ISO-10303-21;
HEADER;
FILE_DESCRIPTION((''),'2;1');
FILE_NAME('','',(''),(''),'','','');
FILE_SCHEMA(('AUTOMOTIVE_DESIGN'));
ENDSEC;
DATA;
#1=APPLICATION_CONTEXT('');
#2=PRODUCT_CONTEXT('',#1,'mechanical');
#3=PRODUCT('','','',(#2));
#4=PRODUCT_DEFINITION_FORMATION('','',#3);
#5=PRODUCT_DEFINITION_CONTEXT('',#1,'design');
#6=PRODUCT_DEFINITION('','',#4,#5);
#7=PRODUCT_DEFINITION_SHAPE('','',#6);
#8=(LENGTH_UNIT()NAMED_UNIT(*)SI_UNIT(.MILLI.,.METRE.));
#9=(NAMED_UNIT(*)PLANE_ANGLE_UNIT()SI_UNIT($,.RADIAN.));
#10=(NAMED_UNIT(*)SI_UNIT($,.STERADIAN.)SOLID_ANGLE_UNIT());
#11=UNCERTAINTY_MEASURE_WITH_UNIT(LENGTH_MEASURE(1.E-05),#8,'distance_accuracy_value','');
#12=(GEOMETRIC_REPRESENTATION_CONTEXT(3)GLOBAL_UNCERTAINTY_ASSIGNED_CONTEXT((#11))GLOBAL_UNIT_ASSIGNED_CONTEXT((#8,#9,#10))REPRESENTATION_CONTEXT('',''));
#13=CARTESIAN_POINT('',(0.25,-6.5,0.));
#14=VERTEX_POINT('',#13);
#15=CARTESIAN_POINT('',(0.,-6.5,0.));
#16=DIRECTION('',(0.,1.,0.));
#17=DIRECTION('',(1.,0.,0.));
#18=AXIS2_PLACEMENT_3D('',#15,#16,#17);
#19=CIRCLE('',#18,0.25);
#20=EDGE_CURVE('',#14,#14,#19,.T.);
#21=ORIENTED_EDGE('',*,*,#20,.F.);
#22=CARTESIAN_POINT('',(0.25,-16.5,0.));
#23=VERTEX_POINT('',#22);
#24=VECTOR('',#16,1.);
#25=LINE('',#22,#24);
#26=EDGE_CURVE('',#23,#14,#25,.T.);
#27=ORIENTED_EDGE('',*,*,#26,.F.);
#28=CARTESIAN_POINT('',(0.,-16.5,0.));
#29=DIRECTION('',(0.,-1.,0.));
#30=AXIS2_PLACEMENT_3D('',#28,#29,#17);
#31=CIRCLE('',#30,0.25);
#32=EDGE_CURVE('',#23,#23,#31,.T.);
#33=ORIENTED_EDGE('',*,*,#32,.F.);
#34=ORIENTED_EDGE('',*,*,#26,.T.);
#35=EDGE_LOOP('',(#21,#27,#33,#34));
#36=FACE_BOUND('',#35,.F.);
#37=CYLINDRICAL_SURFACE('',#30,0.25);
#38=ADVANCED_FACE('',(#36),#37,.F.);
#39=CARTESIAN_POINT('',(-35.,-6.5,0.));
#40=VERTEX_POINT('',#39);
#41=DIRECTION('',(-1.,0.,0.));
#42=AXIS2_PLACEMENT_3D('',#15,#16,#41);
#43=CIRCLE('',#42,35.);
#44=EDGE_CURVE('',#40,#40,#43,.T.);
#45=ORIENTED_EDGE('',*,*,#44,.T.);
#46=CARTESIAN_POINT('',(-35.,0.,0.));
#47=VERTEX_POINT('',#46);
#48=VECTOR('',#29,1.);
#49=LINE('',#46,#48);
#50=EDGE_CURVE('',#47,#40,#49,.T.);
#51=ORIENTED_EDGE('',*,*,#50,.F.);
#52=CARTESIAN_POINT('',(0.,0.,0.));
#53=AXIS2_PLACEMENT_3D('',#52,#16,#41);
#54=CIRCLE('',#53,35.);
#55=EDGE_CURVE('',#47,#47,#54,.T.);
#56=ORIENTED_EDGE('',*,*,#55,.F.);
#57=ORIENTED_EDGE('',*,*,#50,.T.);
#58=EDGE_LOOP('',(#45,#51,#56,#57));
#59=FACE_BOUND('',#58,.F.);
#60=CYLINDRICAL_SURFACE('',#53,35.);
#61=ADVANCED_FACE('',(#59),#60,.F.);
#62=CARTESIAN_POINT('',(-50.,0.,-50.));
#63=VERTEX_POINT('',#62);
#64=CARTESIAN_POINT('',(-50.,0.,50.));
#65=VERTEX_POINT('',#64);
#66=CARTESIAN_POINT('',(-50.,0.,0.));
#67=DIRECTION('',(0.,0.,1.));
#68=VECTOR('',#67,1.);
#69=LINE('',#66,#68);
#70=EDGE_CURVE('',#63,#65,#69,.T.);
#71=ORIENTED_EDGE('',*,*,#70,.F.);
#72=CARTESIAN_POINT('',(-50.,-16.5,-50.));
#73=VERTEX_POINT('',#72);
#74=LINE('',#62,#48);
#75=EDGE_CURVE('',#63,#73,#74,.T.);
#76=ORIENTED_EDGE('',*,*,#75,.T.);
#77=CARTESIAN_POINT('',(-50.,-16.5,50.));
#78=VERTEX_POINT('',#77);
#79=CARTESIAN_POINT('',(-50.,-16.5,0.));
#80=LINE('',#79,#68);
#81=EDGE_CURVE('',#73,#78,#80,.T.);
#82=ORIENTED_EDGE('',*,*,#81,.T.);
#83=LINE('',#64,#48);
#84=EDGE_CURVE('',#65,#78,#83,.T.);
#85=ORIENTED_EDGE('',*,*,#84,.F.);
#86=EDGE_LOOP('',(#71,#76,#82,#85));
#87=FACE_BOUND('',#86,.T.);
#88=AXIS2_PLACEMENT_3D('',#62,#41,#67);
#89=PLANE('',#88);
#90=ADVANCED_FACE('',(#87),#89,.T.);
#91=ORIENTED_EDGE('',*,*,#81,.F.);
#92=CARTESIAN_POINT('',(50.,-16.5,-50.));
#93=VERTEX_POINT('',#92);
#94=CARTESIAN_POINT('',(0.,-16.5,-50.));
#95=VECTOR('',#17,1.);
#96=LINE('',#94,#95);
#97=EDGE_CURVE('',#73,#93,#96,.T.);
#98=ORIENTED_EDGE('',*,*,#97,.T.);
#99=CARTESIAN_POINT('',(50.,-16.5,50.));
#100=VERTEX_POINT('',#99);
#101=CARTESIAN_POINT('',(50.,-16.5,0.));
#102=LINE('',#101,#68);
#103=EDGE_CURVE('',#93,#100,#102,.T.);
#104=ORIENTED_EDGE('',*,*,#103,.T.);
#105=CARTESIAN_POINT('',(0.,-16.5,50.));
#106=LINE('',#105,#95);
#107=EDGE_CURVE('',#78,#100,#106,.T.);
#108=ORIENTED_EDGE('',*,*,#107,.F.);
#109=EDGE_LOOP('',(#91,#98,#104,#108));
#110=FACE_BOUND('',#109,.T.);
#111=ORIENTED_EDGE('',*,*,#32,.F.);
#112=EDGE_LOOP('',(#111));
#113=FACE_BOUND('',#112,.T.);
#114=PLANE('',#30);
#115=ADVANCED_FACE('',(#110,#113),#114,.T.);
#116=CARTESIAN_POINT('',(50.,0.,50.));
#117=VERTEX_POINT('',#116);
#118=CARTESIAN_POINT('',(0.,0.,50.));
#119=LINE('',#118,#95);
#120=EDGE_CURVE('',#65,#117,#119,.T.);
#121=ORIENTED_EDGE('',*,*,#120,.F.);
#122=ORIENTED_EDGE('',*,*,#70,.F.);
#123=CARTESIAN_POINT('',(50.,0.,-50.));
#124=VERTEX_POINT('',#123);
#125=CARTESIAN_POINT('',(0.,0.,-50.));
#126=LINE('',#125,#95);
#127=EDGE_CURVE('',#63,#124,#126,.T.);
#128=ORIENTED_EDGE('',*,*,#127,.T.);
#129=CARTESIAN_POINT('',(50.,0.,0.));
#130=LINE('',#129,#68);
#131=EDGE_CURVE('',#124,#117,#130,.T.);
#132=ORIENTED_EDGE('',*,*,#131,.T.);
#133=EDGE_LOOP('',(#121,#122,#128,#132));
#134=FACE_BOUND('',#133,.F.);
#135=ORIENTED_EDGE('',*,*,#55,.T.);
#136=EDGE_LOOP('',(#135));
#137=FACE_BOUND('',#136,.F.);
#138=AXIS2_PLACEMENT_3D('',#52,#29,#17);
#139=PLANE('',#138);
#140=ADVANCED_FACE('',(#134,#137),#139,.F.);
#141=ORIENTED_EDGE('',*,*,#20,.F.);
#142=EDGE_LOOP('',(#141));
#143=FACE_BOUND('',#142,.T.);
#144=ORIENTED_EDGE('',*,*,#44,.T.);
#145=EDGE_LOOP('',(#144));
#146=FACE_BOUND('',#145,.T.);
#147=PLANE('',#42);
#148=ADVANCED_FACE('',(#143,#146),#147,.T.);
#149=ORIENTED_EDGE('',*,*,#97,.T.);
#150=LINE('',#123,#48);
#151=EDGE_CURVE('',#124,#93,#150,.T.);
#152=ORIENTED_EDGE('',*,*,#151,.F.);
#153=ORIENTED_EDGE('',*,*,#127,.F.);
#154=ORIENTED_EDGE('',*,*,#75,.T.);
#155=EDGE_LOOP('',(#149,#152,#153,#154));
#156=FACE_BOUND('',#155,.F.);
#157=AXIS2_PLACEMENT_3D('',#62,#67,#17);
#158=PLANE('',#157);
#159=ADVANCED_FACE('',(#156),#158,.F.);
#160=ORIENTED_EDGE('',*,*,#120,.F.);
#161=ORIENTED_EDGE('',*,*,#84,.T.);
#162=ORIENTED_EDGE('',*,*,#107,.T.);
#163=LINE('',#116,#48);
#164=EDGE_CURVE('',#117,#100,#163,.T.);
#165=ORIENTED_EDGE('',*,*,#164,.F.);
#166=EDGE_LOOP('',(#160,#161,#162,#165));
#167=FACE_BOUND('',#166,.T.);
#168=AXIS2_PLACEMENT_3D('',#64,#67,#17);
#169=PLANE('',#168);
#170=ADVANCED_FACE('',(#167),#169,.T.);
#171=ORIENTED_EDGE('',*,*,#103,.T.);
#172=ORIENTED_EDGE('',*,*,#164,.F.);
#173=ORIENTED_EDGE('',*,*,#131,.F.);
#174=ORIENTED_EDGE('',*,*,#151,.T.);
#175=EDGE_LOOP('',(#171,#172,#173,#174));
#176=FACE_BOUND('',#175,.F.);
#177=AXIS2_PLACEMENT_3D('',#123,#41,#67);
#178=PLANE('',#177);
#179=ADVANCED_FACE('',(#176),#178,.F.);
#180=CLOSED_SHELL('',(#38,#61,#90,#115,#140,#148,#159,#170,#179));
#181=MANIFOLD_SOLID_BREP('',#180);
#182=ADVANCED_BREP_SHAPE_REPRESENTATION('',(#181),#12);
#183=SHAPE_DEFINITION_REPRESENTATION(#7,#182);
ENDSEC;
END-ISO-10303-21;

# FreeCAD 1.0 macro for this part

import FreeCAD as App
import Part
import Sketcher
Q = App.Units.Quantity


def add_polygon(sketch, points):
    """Adds a closed chain of lines whose ends are joined by coincident constraints."""
    first, n = sketch.GeometryCount, len(points)
    for a, b in zip(points, points[1:] + points[:1]):
        sketch.addGeometry(Part.LineSegment(App.Vector(*a, 0), App.Vector(*b, 0)), False)
    for i in range(n):
        sketch.addConstraint(Sketcher.Constraint("Coincident", first + i, 2, first + (i + 1) % n, 1))

doc = App.newDocument("Part")
body = doc.addObject("PartDesign::Body", "Body")

sketch1 = body.newObject("Sketcher::SketchObject", "Sketch")
sketch1.AttachmentSupport = (doc.getObject("XZ_Plane"), [""])
sketch1.MapMode = "FlatFace"
add_polygon(sketch1, [(-50, 50), (-50, -50), (50, -50), (50, 50)])
sketch1.addConstraint([
    Sketcher.Constraint("Vertical", 0),
    Sketcher.Constraint("Horizontal", 1),
    Sketcher.Constraint("Vertical", 2),
    Sketcher.Constraint("Horizontal", 3),
    Sketcher.Constraint("Symmetric", 0, 2, 2, 2, -1, 1),
    Sketcher.Constraint("Equal", 3, 0),
    Sketcher.Constraint("DistanceX", 1, 1, 1, 2, Q("100 mm")),
])
pad1 = body.newObject("PartDesign::Pad", "Pad")
pad1.Profile = sketch1
pad1.Length = 16.5

sketch2 = body.newObject("Sketcher::SketchObject", "Sketch001")
sketch2.AttachmentSupport = (doc.getObject("XZ_Plane"), [""])
sketch2.MapMode = "FlatFace"
sketch2.AttachmentOffset = App.Placement(App.Vector(0, 0, 16.5), App.Rotation())
sketch2.addGeometry(Part.Circle(App.Vector(0, 0, 0), App.Vector(0, 0, 1), 0.25), False)
sketch2.addConstraint([
    Sketcher.Constraint("Coincident", 0, 3, -1, 1),
    Sketcher.Constraint("Diameter", 0, Q("0.5 mm")),
])
pocket1 = body.newObject("PartDesign::Pocket", "Pocket")
pocket1.Profile = sketch2
pocket1.Type = "ThroughAll"

sketch3 = body.newObject("Sketcher::SketchObject", "Sketch002")
sketch3.AttachmentSupport = (doc.getObject("XZ_Plane"), [""])
sketch3.MapMode = "FlatFace"
sketch3.addGeometry([
    Part.Circle(App.Vector(0, 0, 0), App.Vector(0, 0, 1), 35),
    Part.Circle(App.Vector(0, 0, 0), App.Vector(0, 0, 1), 0.25),
], False)
sketch3.addConstraint([
    Sketcher.Constraint("Coincident", 0, 3, -1, 1),
    Sketcher.Constraint("Coincident", 1, 3, -1, 1),
    Sketcher.Constraint("Diameter", 0, Q("70 mm")),
    Sketcher.Constraint("Diameter", 1, Q("0.5 mm")),
])
pocket2 = body.newObject("PartDesign::Pocket", "Pocket001")
pocket2.Profile = sketch3
pocket2.Length = 6.5
pocket2.Reversed = True

doc.recompute()
